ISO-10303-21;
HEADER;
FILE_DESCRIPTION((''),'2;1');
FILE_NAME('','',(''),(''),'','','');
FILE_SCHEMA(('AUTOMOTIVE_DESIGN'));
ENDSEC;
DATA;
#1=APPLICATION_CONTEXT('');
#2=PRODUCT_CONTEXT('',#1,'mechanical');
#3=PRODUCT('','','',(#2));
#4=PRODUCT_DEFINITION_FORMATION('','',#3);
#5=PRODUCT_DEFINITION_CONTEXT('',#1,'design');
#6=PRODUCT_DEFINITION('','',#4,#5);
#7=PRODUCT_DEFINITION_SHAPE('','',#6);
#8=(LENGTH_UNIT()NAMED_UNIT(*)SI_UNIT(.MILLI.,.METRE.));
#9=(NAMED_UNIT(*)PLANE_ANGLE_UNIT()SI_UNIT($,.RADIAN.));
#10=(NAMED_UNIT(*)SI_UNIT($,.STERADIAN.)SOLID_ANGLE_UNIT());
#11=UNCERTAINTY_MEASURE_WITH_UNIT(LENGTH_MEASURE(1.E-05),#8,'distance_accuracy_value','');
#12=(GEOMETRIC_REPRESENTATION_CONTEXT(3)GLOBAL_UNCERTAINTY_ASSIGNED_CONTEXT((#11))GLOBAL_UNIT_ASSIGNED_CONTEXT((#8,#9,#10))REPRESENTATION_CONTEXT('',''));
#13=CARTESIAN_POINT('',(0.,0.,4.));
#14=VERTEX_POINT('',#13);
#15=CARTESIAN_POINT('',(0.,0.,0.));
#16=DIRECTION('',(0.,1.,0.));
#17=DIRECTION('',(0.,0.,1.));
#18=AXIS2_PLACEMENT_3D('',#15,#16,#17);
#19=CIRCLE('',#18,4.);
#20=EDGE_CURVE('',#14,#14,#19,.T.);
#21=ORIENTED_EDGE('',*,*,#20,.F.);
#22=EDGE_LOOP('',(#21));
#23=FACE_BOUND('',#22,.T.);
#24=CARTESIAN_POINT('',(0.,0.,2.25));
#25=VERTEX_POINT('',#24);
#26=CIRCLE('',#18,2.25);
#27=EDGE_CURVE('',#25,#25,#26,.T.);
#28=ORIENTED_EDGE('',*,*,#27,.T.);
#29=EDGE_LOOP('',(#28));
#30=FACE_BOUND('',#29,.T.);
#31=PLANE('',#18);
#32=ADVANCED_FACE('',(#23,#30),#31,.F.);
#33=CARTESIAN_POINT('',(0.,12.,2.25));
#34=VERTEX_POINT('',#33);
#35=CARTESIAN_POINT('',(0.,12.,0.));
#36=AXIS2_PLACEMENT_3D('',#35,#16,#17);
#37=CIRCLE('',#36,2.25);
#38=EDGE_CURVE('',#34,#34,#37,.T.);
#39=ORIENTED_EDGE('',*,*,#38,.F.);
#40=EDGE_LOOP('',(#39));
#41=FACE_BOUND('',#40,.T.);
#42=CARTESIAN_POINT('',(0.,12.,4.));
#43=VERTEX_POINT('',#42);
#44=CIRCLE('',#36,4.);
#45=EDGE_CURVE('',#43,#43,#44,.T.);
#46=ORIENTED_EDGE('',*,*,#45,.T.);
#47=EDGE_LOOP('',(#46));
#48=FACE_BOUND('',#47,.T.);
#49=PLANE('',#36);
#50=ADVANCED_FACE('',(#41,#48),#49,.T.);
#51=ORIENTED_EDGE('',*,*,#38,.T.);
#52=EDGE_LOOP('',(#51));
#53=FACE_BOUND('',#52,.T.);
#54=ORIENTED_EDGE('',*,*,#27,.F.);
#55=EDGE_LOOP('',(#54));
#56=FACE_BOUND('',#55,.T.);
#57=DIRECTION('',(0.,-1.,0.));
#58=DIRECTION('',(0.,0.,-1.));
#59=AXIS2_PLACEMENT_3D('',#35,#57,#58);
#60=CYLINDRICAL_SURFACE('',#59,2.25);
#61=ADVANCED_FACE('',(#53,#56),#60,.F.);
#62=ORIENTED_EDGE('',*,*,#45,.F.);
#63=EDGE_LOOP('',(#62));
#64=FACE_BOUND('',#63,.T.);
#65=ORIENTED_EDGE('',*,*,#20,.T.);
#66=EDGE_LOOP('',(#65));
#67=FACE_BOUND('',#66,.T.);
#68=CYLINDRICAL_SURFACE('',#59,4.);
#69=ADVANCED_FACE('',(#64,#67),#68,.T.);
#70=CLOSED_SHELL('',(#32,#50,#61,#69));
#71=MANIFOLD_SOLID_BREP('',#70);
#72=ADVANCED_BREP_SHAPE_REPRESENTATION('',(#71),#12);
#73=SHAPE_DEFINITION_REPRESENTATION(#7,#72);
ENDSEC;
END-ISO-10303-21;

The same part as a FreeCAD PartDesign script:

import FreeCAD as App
import Part
import Sketcher
from FreeCAD import Vector

doc = App.newDocument("Part")
body = doc.addObject("PartDesign::Body", "Body")

# Sketch on XZ plane
sketch1 = body.newObject("Sketcher::SketchObject", "Sketch")
sketch1.AttachmentSupport = (doc.getObject("XZ_Plane"), [""])
sketch1.MapMode = "FlatFace"
sketch1.addGeometry([
    Part.Circle(Vector(0, 0, 0), Vector(0, 0, 1), 4),
    Part.Circle(Vector(0, 0, 0), Vector(0, 0, 1), 2.2),
], False)
sketch1.addConstraint([
    Sketcher.Constraint("Coincident", 0, 3, -1, 1),
    Sketcher.Constraint("Coincident", 1, 3, -1, 1),
    Sketcher.Constraint("Diameter", 0, 8.0),
    Sketcher.Constraint("Diameter", 1, 4.5),
])
pad1 = body.newObject("PartDesign::Pad", "Pad")
pad1.Profile = sketch1
pad1.Length = 12
pad1.Reversed = True

doc.recompute()
